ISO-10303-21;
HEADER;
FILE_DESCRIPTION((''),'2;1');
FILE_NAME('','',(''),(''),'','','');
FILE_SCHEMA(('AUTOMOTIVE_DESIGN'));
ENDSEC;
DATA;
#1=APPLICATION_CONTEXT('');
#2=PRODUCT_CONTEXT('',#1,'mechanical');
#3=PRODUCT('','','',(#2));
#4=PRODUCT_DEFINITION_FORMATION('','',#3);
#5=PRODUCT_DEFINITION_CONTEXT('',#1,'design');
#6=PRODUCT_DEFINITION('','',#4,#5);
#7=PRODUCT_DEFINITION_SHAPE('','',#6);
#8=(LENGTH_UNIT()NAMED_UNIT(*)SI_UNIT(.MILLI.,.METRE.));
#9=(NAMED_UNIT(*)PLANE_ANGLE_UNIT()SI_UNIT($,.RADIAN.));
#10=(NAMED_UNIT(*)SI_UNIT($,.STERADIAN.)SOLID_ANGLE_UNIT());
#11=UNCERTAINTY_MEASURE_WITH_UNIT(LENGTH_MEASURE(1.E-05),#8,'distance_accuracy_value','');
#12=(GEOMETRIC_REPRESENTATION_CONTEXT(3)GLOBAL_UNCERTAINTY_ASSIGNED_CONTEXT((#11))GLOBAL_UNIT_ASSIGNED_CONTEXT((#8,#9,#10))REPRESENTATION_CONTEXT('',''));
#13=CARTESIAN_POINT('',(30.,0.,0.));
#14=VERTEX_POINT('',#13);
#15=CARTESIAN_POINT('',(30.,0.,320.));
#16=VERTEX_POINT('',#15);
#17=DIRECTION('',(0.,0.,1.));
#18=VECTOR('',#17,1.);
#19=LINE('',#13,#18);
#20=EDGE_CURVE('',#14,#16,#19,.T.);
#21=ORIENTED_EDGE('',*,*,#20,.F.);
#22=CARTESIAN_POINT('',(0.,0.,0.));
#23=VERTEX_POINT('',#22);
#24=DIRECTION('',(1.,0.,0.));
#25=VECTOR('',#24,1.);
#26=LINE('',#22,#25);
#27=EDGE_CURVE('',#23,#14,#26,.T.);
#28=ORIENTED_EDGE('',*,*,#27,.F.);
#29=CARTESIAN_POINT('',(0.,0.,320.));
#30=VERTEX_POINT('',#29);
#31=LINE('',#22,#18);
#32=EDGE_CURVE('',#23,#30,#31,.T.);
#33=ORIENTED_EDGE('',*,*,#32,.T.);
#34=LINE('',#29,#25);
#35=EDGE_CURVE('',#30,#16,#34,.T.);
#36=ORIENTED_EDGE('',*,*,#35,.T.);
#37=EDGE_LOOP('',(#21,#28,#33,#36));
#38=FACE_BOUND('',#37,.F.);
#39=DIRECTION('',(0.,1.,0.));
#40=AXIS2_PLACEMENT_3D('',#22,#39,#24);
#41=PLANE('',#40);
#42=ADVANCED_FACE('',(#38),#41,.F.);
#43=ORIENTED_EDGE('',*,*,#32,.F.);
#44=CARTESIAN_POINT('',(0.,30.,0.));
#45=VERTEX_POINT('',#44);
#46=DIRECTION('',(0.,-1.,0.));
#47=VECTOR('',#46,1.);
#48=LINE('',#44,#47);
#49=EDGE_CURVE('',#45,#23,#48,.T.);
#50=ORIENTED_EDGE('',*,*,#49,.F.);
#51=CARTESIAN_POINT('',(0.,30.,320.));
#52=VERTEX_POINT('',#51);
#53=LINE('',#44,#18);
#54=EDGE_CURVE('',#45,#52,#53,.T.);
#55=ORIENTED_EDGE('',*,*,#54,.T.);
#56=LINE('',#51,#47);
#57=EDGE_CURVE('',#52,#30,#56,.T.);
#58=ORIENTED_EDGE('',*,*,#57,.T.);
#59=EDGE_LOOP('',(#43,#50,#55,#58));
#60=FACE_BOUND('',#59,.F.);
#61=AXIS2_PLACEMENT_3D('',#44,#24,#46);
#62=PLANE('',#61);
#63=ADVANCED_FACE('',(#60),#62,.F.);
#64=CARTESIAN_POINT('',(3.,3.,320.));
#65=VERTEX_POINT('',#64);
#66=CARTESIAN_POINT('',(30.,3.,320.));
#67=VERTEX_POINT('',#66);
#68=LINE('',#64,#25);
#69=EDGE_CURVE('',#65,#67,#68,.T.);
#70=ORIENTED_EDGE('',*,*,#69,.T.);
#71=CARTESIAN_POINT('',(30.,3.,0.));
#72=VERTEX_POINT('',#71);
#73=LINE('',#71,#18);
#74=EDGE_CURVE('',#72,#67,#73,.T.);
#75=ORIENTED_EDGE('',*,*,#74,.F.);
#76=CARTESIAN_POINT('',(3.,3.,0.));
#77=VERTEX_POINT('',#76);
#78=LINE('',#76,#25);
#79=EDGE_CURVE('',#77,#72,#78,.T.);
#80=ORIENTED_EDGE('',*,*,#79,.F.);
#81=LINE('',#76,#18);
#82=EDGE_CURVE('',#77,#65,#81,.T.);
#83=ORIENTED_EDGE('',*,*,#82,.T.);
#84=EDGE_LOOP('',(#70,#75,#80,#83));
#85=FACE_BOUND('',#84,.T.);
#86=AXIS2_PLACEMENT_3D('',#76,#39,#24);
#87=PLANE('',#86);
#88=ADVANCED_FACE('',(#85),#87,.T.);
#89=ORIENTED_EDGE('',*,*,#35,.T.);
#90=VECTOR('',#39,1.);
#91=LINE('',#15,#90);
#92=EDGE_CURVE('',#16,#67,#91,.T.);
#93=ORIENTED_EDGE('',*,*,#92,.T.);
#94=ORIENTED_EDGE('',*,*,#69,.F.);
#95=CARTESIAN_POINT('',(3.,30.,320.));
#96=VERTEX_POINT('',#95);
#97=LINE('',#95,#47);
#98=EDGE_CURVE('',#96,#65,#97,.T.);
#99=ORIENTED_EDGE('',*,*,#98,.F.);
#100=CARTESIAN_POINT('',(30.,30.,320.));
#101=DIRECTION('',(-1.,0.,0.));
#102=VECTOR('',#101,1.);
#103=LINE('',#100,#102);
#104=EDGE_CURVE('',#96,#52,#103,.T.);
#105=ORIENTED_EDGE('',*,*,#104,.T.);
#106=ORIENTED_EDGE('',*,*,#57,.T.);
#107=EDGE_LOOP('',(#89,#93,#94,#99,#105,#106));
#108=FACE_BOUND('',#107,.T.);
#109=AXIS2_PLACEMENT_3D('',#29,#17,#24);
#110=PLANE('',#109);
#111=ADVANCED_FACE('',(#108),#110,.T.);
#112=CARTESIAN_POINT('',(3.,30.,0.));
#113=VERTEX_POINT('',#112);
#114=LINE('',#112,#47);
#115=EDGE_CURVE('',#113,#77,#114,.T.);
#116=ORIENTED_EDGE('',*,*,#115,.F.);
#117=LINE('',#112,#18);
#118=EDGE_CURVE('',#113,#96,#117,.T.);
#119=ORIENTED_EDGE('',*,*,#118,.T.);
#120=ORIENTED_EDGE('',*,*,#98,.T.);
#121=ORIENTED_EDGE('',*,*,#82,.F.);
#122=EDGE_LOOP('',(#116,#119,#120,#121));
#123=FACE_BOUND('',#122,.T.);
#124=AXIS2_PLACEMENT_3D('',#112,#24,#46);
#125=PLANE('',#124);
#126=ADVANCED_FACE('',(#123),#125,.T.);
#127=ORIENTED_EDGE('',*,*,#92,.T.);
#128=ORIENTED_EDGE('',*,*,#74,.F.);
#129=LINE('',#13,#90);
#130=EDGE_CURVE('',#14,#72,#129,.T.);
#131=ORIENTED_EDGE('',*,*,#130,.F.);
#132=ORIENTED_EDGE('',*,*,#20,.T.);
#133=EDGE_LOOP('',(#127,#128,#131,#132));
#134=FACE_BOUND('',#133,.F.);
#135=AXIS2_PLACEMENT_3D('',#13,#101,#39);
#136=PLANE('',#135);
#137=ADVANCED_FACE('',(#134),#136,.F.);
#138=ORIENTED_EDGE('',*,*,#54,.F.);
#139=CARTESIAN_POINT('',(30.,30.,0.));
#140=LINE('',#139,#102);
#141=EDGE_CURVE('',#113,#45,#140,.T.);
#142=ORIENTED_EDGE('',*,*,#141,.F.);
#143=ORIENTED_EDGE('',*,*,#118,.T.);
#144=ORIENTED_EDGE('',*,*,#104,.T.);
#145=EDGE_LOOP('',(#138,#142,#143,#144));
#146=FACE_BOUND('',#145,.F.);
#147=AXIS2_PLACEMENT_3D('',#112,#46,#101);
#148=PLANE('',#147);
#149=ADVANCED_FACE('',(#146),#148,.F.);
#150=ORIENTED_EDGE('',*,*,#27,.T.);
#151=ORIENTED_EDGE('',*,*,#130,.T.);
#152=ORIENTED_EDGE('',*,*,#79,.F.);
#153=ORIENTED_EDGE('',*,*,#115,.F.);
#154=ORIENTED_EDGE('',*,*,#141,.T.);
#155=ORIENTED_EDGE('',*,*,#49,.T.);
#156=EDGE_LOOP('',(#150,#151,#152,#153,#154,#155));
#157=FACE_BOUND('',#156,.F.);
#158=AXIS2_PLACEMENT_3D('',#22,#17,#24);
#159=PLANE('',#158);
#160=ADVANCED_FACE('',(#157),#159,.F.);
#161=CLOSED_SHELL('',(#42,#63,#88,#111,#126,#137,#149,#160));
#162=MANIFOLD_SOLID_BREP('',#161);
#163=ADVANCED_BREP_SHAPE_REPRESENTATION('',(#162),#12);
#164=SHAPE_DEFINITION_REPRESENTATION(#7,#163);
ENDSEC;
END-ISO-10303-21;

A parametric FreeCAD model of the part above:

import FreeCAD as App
import Part
import Sketcher
from FreeCAD import Vector

doc = App.newDocument("Part")
body = doc.addObject("PartDesign::Body", "Body")

sketch1 = body.newObject("Sketcher::SketchObject", "Sketch")
sketch1.AttachmentSupport = (doc.getObject("XY_Plane"), [""])
sketch1.MapMode = "FlatFace"
sketch1.addGeometry([
    Part.LineSegment(Vector(0, 30, 0), Vector(0, 0, 0)),
    Part.LineSegment(Vector(0, 0, 0), Vector(30, 0, 0)),
    Part.LineSegment(Vector(30, 0, 0), Vector(30, 3, 0)),
    Part.LineSegment(Vector(30, 3, 0), Vector(3, 3, 0)),
    Part.LineSegment(Vector(3, 3, 0), Vector(3, 30, 0)),
    Part.LineSegment(Vector(3, 30, 0), Vector(0, 30, 0)),
], False)
sketch1.addConstraint([
    Sketcher.Constraint("Coincident", 0, 2, 1, 1),
    Sketcher.Constraint("Coincident", 1, 2, 2, 1),
    Sketcher.Constraint("Coincident", 2, 2, 3, 1),
    Sketcher.Constraint("Coincident", 3, 2, 4, 1),
    Sketcher.Constraint("Coincident", 4, 2, 5, 1),
    Sketcher.Constraint("Coincident", 5, 2, 0, 1),
    Sketcher.Constraint("Vertical", 0),
    Sketcher.Constraint("Horizontal", 1),
    Sketcher.Constraint("Vertical", 2),
    Sketcher.Constraint("Horizontal", 3),
    Sketcher.Constraint("Vertical", 4),
    Sketcher.Constraint("Horizontal", 5),
    Sketcher.Constraint("Coincident", 0, 2, -1, 1),
    Sketcher.Constraint("Equal", 1, 0),
    Sketcher.Constraint("Equal", 5, 2),
    Sketcher.Constraint("DistanceX", 1, 1, 1, 2, 30.0),
    Sketcher.Constraint("DistanceX", 3, 2, 3, 1, 27.0),
])
pad1 = body.newObject("PartDesign::Pad", "Pad")
pad1.Profile = sketch1
pad1.Length = 320

doc.recompute()
